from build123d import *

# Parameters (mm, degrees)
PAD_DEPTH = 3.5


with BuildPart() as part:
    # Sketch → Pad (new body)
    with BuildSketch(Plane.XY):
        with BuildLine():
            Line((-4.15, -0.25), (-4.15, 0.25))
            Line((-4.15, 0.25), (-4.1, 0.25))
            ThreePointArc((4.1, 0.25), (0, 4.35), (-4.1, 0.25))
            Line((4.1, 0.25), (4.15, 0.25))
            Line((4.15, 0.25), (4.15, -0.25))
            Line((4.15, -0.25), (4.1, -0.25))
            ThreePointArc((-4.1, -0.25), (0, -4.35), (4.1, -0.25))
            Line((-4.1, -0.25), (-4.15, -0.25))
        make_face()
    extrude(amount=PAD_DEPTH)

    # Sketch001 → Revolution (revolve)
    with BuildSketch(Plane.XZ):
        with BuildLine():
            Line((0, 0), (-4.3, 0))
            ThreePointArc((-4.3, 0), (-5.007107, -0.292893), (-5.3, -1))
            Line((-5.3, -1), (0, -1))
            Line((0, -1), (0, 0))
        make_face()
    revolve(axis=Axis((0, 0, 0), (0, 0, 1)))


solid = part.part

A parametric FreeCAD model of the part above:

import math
import FreeCAD as App
import Part
import Sketcher

doc = App.newDocument("Part")
body = doc.addObject("PartDesign::Body", "Body")

sketch1 = body.newObject("Sketcher::SketchObject", "Sketch")
sketch1.AttachmentSupport = (doc.getObject("XY_Plane"), [""])
sketch1.MapMode = "FlatFace"
sketch1.addGeometry([
    Part.LineSegment(App.Vector(-4.15, 0.25, 0), App.Vector(-4.15, -0.25, 0)),
    Part.LineSegment(App.Vector(-4.15, -0.25, 0), App.Vector(-4.1, -0.25, 0)),
    Part.ArcOfCircle(Part.Circle(App.Vector(0, -0.25, 0), App.Vector(0, 0, 1), 4.1), math.radians(180), math.radians(360)),
    Part.LineSegment(App.Vector(4.1, -0.25, 0), App.Vector(4.15, -0.25, 0)),
    Part.LineSegment(App.Vector(4.15, -0.25, 0), App.Vector(4.15, 0.25, 0)),
    Part.LineSegment(App.Vector(4.15, 0.25, 0), App.Vector(4.1, 0.25, 0)),
    Part.ArcOfCircle(Part.Circle(App.Vector(0, 0.25, 0), App.Vector(0, 0, 1), 4.1), math.radians(0), math.radians(180)),
    Part.LineSegment(App.Vector(-4.1, 0.25, 0), App.Vector(-4.15, 0.25, 0)),
], False)
sketch1.addConstraint([
    Sketcher.Constraint("Coincident", 0, 2, 1, 1),
    Sketcher.Constraint("Coincident", 1, 2, 2, 1),
    Sketcher.Constraint("Coincident", 2, 2, 3, 1),
    Sketcher.Constraint("Coincident", 3, 2, 4, 1),
    Sketcher.Constraint("Coincident", 4, 2, 5, 1),
    Sketcher.Constraint("Coincident", 5, 2, 6, 1),
    Sketcher.Constraint("Coincident", 6, 2, 7, 1),
    Sketcher.Constraint("Coincident", 7, 2, 0, 1),
    Sketcher.Constraint("Vertical", 0),
    Sketcher.Constraint("Horizontal", 1),
    Sketcher.Constraint("Horizontal", 3),
    Sketcher.Constraint("Vertical", 4),
    Sketcher.Constraint("Horizontal", 5),
    Sketcher.Constraint("Horizontal", 7),
    Sketcher.Constraint("Equal", 2, 6),
    Sketcher.Constraint("Symmetric", 2, 3, 6, 3, -1, 1),
    Sketcher.Constraint("Symmetric", 0, 2, 4, 2, -1, 1),
    Sketcher.Constraint("Symmetric", 1, 2, 2, 2, -2),
    Sketcher.Constraint("Horizontal", 2, 3, 0, 2),
    Sketcher.Constraint("Horizontal", 5, 2, 6, 2),
    Sketcher.Constraint("Radius", 2, 4.1),
    Sketcher.Constraint("DistanceY", 0, 2, 0, 1, 0.5),
    Sketcher.Constraint("DistanceX", 1, 1, 1, 2, 0.05),
])
pad1 = body.newObject("PartDesign::Pad", "Pad")
pad1.Profile = sketch1
pad1.Length = 3.5

sketch2 = body.newObject("Sketcher::SketchObject", "Sketch001")
sketch2.AttachmentSupport = (doc.getObject("XZ_Plane"), [""])
sketch2.MapMode = "FlatFace"
sketch2.addGeometry([
    Part.LineSegment(App.Vector(0, 0, 0), App.Vector(-4.3, 0, 0)),
    Part.ArcOfCircle(Part.Circle(App.Vector(-4.300001, -0.999999, 0), App.Vector(0, 0, 1), 0.999999), math.radians(89.999957), math.radians(180.000043)),
    Part.LineSegment(App.Vector(-5.3, -1, 0), App.Vector(0, -1, 0)),
    Part.LineSegment(App.Vector(0, -1, 0), App.Vector(0, 0, 0)),
], False)
sketch2.addConstraint([
    Sketcher.Constraint("Tangent", 0, 2, 1, 1),
    Sketcher.Constraint("Coincident", 1, 2, 2, 1),
    Sketcher.Constraint("Coincident", 2, 2, 3, 1),
    Sketcher.Constraint("Coincident", 3, 2, 0, 1),
    Sketcher.Constraint("Horizontal", 0),
    Sketcher.Constraint("Horizontal", 2),
    Sketcher.Constraint("Vertical", 3),
    Sketcher.Constraint("Coincident", 3, 2, -1, 1),
    Sketcher.Constraint("Radius", 1, 0.999999),
    Sketcher.Constraint("DistanceY", 3, 1, 3, 2, 1.0),
    Sketcher.Constraint("DistanceX", 0, 2, 0, 1, 4.3),
])
revolution = body.newObject("PartDesign::Revolution", "Revolution")
revolution.Profile = sketch2
revolution.ReferenceAxis = (sketch2, ["V_Axis"])
revolution.Angle = 360

doc.recompute()
